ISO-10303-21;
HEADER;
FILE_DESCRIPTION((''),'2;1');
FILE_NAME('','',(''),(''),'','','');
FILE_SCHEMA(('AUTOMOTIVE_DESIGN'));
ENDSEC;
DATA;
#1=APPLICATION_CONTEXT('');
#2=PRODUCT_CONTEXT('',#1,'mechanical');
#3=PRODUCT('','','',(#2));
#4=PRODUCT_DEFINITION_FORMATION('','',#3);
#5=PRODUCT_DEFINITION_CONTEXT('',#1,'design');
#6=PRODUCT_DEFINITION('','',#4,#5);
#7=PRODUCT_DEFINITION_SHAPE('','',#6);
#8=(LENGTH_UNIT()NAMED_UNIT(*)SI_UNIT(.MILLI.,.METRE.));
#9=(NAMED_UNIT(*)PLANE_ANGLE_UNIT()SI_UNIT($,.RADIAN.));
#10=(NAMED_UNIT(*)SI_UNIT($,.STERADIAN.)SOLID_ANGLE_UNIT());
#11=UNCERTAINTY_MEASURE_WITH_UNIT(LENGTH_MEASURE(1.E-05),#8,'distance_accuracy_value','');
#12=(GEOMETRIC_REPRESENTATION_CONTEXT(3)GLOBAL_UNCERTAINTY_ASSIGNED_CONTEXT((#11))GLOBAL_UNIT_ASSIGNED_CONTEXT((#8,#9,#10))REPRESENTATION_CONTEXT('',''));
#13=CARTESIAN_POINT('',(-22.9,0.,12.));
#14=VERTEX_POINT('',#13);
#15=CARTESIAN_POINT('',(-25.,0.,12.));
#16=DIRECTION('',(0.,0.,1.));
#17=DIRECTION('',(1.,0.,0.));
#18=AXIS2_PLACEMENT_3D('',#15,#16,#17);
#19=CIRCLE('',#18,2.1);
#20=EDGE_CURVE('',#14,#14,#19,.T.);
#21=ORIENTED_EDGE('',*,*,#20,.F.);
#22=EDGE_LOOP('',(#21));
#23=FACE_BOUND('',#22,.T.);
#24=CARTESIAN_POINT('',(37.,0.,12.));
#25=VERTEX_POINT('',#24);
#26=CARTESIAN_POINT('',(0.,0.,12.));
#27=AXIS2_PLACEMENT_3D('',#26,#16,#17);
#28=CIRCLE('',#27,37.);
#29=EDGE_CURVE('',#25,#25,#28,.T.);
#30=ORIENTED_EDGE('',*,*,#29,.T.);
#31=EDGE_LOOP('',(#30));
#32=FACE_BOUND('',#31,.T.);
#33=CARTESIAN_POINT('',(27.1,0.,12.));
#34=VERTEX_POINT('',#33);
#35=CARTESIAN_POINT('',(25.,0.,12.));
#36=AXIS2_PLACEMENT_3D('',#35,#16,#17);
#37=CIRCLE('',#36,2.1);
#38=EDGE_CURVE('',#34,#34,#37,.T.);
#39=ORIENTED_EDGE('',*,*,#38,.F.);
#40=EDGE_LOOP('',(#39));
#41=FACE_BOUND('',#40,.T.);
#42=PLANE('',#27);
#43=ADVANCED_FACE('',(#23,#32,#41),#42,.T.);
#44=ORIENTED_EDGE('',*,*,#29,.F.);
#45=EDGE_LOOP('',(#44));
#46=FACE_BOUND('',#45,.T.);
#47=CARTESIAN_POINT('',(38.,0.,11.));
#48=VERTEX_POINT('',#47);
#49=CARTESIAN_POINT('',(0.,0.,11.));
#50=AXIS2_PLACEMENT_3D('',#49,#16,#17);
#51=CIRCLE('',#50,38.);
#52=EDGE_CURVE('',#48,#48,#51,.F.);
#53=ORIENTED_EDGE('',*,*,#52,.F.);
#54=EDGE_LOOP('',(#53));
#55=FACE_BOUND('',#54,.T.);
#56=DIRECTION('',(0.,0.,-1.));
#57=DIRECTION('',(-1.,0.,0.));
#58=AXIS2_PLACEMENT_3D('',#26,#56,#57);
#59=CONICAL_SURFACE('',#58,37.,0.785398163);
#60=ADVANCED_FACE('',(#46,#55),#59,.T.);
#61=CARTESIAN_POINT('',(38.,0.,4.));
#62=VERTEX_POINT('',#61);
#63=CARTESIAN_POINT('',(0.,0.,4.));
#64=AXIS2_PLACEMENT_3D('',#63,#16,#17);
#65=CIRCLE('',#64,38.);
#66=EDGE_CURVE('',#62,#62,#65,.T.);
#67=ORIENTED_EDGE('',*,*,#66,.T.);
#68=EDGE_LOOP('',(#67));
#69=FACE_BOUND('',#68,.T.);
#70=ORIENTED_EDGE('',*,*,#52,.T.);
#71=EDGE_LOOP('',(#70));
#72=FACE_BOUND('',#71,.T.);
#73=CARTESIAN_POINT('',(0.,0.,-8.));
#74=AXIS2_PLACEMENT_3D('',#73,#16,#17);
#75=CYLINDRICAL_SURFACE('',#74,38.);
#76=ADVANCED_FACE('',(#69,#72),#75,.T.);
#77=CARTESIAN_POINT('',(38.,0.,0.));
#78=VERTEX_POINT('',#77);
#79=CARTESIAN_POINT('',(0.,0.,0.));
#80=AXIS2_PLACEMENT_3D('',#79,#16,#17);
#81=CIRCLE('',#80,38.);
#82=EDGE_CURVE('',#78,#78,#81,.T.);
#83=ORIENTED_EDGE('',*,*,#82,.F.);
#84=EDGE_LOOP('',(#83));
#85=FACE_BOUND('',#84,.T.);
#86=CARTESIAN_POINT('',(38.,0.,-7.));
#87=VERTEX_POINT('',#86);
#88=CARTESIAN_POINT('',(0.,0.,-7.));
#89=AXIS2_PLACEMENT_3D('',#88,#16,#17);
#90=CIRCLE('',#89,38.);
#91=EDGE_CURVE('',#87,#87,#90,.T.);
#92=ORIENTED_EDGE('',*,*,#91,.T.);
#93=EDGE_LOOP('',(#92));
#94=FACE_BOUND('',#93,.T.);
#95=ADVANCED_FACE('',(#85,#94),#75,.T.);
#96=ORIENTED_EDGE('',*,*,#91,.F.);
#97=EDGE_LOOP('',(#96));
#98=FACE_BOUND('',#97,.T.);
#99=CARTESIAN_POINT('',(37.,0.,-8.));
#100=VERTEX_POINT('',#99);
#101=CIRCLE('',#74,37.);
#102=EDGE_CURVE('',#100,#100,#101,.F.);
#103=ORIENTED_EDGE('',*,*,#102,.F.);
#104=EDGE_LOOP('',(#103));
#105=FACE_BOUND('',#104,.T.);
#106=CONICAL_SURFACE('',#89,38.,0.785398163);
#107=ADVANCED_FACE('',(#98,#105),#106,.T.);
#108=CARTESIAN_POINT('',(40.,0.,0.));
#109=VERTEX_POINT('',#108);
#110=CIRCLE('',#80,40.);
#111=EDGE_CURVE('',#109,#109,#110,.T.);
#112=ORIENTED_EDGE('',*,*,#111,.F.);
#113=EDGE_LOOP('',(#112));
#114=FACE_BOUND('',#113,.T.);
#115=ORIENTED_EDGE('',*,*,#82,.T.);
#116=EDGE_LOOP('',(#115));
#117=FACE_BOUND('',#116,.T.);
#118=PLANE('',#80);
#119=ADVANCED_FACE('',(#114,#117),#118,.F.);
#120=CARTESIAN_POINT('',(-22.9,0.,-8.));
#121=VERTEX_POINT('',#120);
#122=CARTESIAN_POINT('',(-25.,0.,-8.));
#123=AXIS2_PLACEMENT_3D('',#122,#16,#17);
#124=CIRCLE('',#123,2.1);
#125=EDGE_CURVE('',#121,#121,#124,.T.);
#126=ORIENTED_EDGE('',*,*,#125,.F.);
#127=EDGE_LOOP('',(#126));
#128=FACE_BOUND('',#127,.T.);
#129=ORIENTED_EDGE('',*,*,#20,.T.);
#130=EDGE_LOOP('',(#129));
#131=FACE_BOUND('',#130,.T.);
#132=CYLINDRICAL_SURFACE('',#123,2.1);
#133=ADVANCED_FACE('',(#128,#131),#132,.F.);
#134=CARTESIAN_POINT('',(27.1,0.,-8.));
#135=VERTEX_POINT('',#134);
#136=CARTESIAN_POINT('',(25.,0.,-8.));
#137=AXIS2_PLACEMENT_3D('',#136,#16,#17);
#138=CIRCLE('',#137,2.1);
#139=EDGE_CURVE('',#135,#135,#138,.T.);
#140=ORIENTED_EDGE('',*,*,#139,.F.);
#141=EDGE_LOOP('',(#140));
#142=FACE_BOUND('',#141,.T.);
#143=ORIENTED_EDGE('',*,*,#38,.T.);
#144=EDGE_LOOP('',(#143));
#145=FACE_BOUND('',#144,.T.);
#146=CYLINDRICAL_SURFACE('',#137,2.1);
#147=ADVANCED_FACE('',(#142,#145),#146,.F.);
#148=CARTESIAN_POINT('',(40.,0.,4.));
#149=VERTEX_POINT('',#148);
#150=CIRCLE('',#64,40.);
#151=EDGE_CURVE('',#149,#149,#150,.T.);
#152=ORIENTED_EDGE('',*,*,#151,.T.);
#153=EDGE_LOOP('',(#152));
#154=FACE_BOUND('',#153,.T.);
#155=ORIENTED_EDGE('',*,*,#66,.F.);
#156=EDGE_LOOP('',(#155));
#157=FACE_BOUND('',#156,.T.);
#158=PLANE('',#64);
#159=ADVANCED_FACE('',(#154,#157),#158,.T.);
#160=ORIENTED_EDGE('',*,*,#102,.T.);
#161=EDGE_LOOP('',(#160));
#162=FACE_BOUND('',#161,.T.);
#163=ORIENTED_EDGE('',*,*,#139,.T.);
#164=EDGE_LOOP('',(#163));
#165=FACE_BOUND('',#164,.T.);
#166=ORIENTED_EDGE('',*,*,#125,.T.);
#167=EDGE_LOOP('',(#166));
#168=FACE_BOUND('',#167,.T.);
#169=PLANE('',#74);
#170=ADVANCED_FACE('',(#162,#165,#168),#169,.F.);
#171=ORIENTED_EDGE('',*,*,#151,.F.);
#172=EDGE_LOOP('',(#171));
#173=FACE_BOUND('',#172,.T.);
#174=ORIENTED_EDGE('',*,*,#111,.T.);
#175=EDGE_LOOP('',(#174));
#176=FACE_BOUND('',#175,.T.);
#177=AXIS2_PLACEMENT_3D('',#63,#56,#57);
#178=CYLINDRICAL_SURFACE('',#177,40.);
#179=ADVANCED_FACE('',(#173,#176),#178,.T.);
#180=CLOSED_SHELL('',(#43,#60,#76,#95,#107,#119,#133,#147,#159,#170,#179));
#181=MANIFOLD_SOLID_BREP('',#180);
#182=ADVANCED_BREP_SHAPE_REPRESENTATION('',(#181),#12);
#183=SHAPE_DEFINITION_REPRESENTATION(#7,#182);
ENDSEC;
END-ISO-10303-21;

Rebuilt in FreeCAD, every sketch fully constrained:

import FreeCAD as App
import Part
import Sketcher
from FreeCAD import Vector


def edges_at(feature, points):
    """Names of the edges that pass closest to the given points."""
    edges = feature.Shape.Edges
    near = lambda p: min(range(len(edges)), key=lambda i: edges[i].distToShape(Part.Vertex(*p))[0])
    return sorted({f"Edge{near(p) + 1}" for p in points})

doc = App.newDocument("Part")
body = doc.addObject("PartDesign::Body", "Body")

# Sketch on XY plane
sketch1 = body.newObject("Sketcher::SketchObject", "Sketch")
sketch1.AttachmentSupport = (doc.getObject("XY_Plane"), [""])
sketch1.MapMode = "FlatFace"
sketch1.addGeometry(Part.Circle(Vector(0, 0, 0), Vector(0, 0, 1), 40), False)
sketch1.addConstraint([
    Sketcher.Constraint("Coincident", 0, 3, -1, 1),
    Sketcher.Constraint("Diameter", 0, 80.0),
])
pad1 = body.newObject("PartDesign::Pad", "Pad")
pad1.Profile = sketch1
pad1.Length = 4

# Sketch on XY plane
sketch2 = body.newObject("Sketcher::SketchObject", "Sketch001")
sketch2.AttachmentSupport = (doc.getObject("XY_Plane"), [""])
sketch2.MapMode = "FlatFace"
sketch2.AttachmentOffset = App.Placement(Vector(0, 0, 4), App.Rotation())
sketch2.addGeometry(Part.Circle(Vector(0, 0, 0), Vector(0, 0, 1), 38), False)
sketch2.addConstraint([
    Sketcher.Constraint("Coincident", 0, 3, -1, 1),
    Sketcher.Constraint("Diameter", 0, 76.0),
])
pad2 = body.newObject("PartDesign::Pad", "Pad001")
pad2.Profile = sketch2
pad2.Type = "TwoLengths"
pad2.Length = 8
pad2.Length2 = 12
doc.recompute()

chamfer = body.newObject("PartDesign::Chamfer", "Chamfer")
chamfer.Base = (pad2, edges_at(pad2, [(-38, 0, -8), (-38, 0, 12)]))
chamfer.Size = 1

# Sketch on XY plane
sketch3 = body.newObject("Sketcher::SketchObject", "Sketch002")
sketch3.AttachmentSupport = (doc.getObject("XY_Plane"), [""])
sketch3.MapMode = "FlatFace"
sketch3.AttachmentOffset = App.Placement(Vector(0, 0, 12), App.Rotation())
sketch3.addGeometry([
    Part.Circle(Vector(25, 0, 0), Vector(0, 0, 1), 2.1),
    Part.Circle(Vector(-25, 0, 0), Vector(0, 0, 1), 2.1),
], False)
sketch3.addConstraint([
    Sketcher.Constraint("Equal", 0, 1),
    Sketcher.Constraint("Symmetric", 0, 3, 1, 3, -1, 1),
    Sketcher.Constraint("PointOnObject", 0, 3, -1),
    Sketcher.Constraint("Diameter", 0, 4.2),
    Sketcher.Constraint("DistanceX", -1, 1, 0, 3, 25.0),
])
pocket1 = body.newObject("PartDesign::Pocket", "Pocket")
pocket1.Profile = sketch3
pocket1.Type = "ThroughAll"

doc.recompute()
